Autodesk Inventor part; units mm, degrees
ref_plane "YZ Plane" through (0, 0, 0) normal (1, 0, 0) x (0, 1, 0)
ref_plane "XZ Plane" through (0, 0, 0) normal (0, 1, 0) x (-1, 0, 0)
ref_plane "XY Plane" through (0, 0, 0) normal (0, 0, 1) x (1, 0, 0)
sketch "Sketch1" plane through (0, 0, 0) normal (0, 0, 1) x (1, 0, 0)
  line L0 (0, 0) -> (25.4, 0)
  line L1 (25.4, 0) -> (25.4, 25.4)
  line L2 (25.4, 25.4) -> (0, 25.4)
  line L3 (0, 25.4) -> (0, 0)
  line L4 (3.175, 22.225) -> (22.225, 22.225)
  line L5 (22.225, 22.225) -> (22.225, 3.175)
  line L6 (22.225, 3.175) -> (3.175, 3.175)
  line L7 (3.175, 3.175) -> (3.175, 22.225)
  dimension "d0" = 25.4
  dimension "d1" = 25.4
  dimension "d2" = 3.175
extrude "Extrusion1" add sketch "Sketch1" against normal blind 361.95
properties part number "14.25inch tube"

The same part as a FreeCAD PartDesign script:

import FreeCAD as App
import Part
import Sketcher
Q = App.Units.Quantity


def add_polygon(sketch, points):
    """Adds a closed chain of lines whose ends are joined by coincident constraints."""
    first, n = sketch.GeometryCount, len(points)
    for a, b in zip(points, points[1:] + points[:1]):
        sketch.addGeometry(Part.LineSegment(App.Vector(*a, 0), App.Vector(*b, 0)), False)
    for i in range(n):
        sketch.addConstraint(Sketcher.Constraint("Coincident", first + i, 2, first + (i + 1) % n, 1))

doc = App.newDocument("Part")
body = doc.addObject("PartDesign::Body", "Body")

# Sketch on XY plane
sketch1 = body.newObject("Sketcher::SketchObject", "Sketch")
sketch1.AttachmentSupport = (doc.getObject("XY_Plane"), [""])
sketch1.MapMode = "FlatFace"
add_polygon(sketch1, [(0, 25), (0, 0), (25, 0), (25, 25)])  # lines 0-3
add_polygon(sketch1, [(3, 3), (3, 22), (22, 22), (22, 3)])  # lines 4-7
sketch1.addConstraint([
    Sketcher.Constraint("Vertical", 0),
    Sketcher.Constraint("Horizontal", 1),
    Sketcher.Constraint("Vertical", 2),
    Sketcher.Constraint("Horizontal", 3),
    Sketcher.Constraint("Vertical", 4),
    Sketcher.Constraint("Horizontal", 5),
    Sketcher.Constraint("Vertical", 6),
    Sketcher.Constraint("Horizontal", 7),
    Sketcher.Constraint("Coincident", 0, 2, -1, 1),
    Sketcher.Constraint("Equal", 3, 0),
    Sketcher.Constraint("Equal", 7, 4),
    Sketcher.Constraint("DistanceX", 1, 1, 1, 2, Q("1 in")),
    Sketcher.Constraint("DistanceX", -1, 1, 4, 2, Q("0.125 in")),
    Sketcher.Constraint("DistanceY", -1, 1, 6, 2, Q("0.125 in")),
    Sketcher.Constraint("DistanceY", 4, 2, 3, 2, Q("0.125 in")),
])
pad1 = body.newObject("PartDesign::Pad", "Pad")
pad1.Profile = sketch1
pad1.Length = Q("14.25 in")
pad1.Reversed = True

doc.recompute()
